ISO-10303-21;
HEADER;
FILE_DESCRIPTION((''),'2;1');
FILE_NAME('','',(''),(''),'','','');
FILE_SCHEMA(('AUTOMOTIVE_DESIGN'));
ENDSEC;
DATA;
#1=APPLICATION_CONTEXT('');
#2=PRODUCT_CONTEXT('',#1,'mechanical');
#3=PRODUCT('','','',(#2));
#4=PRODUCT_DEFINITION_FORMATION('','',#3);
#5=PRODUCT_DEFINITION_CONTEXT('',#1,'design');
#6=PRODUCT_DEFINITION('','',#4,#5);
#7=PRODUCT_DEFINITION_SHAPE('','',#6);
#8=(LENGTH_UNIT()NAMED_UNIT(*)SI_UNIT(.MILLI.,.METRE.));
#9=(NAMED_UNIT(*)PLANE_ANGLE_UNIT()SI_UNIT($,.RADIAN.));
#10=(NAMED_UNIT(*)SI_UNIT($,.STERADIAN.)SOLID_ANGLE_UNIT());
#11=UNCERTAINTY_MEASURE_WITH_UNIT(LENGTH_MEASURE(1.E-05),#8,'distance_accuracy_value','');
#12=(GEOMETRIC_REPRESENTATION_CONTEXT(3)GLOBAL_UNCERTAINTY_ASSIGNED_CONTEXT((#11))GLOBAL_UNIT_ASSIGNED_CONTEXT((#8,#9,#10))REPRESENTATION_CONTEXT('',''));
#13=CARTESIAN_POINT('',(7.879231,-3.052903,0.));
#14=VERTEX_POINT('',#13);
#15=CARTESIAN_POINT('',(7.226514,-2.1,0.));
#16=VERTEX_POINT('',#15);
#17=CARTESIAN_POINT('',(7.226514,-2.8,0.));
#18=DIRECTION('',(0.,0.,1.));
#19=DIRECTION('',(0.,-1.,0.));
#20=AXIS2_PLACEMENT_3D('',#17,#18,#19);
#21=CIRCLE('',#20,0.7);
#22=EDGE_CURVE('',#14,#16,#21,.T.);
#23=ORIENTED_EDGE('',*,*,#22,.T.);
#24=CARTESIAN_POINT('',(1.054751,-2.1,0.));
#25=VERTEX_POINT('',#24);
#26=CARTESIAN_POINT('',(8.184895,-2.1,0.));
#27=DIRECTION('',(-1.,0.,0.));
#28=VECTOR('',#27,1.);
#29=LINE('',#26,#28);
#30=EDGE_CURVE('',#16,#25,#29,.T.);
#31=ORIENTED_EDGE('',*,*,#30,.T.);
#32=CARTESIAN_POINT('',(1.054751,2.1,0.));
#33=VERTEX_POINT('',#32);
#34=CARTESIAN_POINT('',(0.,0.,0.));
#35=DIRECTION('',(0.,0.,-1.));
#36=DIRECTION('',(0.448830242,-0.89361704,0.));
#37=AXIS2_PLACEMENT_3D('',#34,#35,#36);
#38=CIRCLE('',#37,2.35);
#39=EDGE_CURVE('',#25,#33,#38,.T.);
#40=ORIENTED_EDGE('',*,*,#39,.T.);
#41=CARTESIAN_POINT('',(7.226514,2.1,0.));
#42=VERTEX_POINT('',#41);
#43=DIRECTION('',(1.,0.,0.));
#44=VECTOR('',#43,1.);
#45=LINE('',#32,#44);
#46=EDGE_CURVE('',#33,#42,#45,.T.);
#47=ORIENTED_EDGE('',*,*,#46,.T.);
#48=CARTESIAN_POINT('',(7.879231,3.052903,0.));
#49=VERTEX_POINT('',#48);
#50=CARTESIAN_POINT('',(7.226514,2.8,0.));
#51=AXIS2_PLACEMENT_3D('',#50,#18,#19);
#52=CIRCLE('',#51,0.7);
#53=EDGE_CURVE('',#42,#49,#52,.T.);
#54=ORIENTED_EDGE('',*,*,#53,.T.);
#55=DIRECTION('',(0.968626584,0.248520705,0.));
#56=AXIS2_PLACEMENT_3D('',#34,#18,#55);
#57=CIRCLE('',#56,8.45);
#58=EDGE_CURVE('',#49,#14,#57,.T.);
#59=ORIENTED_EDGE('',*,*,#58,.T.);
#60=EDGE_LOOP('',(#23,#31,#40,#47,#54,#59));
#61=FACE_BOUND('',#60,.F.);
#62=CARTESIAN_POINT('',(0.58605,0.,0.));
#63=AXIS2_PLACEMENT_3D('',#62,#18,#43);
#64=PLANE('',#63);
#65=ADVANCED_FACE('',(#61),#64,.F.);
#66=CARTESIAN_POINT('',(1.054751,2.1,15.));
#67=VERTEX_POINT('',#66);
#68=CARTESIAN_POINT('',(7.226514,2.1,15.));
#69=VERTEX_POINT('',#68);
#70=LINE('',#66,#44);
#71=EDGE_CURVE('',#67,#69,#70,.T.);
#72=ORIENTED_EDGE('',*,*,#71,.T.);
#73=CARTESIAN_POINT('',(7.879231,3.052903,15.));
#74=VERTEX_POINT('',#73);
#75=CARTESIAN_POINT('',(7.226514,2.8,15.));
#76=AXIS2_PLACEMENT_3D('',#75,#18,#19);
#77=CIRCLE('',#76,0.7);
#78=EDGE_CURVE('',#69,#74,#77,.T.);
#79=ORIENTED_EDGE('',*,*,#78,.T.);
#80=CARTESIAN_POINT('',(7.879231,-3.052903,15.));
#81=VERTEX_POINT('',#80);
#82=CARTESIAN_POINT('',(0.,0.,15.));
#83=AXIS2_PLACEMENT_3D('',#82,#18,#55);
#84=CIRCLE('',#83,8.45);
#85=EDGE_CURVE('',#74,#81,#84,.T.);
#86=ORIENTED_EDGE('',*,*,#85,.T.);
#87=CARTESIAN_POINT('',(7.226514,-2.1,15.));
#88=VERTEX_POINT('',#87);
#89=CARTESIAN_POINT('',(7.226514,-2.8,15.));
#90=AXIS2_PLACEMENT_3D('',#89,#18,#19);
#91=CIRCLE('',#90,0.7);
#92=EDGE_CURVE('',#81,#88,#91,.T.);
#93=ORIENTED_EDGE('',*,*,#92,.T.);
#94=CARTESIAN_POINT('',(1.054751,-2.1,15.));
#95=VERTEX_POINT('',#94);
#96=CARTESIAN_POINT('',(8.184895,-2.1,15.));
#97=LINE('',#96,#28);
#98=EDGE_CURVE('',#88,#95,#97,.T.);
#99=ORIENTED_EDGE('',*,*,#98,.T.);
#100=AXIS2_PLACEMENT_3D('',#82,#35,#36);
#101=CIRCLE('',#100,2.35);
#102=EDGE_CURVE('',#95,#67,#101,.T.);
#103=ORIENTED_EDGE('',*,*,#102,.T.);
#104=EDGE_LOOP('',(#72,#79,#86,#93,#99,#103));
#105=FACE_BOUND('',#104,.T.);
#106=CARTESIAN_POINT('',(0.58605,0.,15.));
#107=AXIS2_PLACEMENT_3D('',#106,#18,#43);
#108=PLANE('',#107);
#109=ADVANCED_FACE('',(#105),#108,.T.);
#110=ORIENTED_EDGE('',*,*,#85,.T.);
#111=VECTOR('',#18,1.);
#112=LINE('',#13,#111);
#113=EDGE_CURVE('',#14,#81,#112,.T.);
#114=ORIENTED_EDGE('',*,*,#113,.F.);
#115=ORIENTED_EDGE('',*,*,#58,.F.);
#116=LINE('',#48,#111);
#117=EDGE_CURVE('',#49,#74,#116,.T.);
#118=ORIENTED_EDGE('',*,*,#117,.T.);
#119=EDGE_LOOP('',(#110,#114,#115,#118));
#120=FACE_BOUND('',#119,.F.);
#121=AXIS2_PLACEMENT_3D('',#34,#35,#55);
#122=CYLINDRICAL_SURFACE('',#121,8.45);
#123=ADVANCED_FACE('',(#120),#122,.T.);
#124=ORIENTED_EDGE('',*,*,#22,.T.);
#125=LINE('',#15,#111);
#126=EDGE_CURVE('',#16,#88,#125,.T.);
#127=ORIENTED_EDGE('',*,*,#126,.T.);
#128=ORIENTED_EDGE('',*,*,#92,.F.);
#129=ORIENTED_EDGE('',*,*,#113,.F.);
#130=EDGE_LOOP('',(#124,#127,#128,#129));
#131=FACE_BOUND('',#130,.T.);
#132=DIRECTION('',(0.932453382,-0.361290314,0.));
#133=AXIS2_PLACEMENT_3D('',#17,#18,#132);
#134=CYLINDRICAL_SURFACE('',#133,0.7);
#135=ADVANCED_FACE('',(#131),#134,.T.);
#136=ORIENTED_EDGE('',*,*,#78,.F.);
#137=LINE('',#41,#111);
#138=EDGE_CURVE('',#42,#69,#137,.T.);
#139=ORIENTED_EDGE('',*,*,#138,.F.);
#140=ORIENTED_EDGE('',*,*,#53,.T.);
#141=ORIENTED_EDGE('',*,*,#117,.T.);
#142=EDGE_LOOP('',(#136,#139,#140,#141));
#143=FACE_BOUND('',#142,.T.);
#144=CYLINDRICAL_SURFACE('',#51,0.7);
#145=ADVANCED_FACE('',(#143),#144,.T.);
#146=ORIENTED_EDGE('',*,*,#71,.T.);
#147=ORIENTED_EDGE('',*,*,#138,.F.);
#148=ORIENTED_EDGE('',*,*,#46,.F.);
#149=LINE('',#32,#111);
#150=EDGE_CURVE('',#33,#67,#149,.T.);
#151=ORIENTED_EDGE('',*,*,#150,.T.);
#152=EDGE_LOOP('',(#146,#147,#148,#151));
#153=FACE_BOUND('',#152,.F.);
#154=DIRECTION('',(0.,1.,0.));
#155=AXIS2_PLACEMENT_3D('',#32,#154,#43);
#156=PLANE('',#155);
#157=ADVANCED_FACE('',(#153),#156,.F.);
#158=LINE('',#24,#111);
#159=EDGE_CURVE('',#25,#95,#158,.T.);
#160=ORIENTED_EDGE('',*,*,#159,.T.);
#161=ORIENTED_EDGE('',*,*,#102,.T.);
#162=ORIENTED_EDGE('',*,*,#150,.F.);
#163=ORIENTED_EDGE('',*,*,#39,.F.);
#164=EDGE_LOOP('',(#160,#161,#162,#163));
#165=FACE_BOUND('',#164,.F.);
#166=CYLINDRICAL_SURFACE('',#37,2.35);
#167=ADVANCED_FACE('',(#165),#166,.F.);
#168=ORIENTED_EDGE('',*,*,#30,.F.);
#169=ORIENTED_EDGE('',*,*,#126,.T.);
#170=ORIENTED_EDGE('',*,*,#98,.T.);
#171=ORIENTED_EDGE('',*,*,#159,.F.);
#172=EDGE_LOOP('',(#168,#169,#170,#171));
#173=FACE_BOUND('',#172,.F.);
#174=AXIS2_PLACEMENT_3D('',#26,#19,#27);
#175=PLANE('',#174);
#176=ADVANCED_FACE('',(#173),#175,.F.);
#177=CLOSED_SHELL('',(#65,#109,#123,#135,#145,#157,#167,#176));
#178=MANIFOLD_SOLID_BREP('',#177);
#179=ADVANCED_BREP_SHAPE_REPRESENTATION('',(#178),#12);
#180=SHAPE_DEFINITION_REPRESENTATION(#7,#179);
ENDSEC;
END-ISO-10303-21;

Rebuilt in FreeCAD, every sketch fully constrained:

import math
import FreeCAD as App
import Part
import Sketcher


def edges_at(feature, points):
    """Names of the edges that pass closest to the given points."""
    edges = feature.Shape.Edges
    near = lambda p: min(range(len(edges)), key=lambda i: edges[i].distToShape(Part.Vertex(*p))[0])
    return sorted({f"Edge{near(p) + 1}" for p in points})

doc = App.newDocument("Part")
body = doc.addObject("PartDesign::Body", "Body")

# Sketch on XY plane
sketch1 = doc.addObject("Sketcher::SketchObject", "Sketch")
body.addObject(sketch1)
sketch1.AttachmentSupport = (doc.XY_Plane, [""])
sketch1.MapMode = "FlatFace"
sketch1.addGeometry(Part.LineSegment(App.Vector(1.054751, 2.1, 0), App.Vector(8.184895, 2.1, 0)), False)
sketch1.addGeometry(Part.ArcOfCircle(Part.Circle(App.Vector(0, 0, 0), App.Vector(0, 0, 1), 8.45), math.radians(14.389992), math.radians(345.610008)), False)
sketch1.addGeometry(Part.LineSegment(App.Vector(8.184895, -2.1, 0), App.Vector(1.054751, -2.1, 0)), False)
sketch1.addGeometry(Part.ArcOfCircle(Part.Circle(App.Vector(0, 0, 0), App.Vector(0, 0, 1), 2.35), math.radians(63.331342), math.radians(296.668658)), False)
sketch1.addConstraint(Sketcher.Constraint("Coincident", 0, 2, 1, 1))
sketch1.addConstraint(Sketcher.Constraint("Coincident", 1, 2, 2, 1))
sketch1.addConstraint(Sketcher.Constraint("Coincident", 2, 2, 3, 2))
sketch1.addConstraint(Sketcher.Constraint("Coincident", 3, 1, 0, 1))
sketch1.addConstraint(Sketcher.Constraint("Horizontal", 0))
sketch1.addConstraint(Sketcher.Constraint("Horizontal", 2))
sketch1.addConstraint(Sketcher.Constraint("Coincident", 1, 3, -1, 1))
sketch1.addConstraint(Sketcher.Constraint("Coincident", 3, 3, -1, 1))
sketch1.addConstraint(Sketcher.Constraint("Vertical", 0, 2, 1, 2))
sketch1.addConstraint(Sketcher.Constraint("Radius", 1, 8.45))
sketch1.addConstraint(Sketcher.Constraint("Radius", 3, 2.35))
sketch1.addConstraint(Sketcher.Constraint("DistanceY", -1, 1, 0, 2, 2.1))
pad1 = doc.addObject("PartDesign::Pad", "Pad")
body.addObject(pad1)
pad1.Profile = sketch1
pad1.Length = 15
doc.recompute()

fillet = doc.addObject("PartDesign::Fillet", "Fillet")
body.addObject(fillet)
fillet.Base = (pad1, edges_at(pad1, [(8.185, 2.1, 7.5), (8.185, -2.1, 7.5)]))
fillet.Radius = 0.7

doc.recompute()
